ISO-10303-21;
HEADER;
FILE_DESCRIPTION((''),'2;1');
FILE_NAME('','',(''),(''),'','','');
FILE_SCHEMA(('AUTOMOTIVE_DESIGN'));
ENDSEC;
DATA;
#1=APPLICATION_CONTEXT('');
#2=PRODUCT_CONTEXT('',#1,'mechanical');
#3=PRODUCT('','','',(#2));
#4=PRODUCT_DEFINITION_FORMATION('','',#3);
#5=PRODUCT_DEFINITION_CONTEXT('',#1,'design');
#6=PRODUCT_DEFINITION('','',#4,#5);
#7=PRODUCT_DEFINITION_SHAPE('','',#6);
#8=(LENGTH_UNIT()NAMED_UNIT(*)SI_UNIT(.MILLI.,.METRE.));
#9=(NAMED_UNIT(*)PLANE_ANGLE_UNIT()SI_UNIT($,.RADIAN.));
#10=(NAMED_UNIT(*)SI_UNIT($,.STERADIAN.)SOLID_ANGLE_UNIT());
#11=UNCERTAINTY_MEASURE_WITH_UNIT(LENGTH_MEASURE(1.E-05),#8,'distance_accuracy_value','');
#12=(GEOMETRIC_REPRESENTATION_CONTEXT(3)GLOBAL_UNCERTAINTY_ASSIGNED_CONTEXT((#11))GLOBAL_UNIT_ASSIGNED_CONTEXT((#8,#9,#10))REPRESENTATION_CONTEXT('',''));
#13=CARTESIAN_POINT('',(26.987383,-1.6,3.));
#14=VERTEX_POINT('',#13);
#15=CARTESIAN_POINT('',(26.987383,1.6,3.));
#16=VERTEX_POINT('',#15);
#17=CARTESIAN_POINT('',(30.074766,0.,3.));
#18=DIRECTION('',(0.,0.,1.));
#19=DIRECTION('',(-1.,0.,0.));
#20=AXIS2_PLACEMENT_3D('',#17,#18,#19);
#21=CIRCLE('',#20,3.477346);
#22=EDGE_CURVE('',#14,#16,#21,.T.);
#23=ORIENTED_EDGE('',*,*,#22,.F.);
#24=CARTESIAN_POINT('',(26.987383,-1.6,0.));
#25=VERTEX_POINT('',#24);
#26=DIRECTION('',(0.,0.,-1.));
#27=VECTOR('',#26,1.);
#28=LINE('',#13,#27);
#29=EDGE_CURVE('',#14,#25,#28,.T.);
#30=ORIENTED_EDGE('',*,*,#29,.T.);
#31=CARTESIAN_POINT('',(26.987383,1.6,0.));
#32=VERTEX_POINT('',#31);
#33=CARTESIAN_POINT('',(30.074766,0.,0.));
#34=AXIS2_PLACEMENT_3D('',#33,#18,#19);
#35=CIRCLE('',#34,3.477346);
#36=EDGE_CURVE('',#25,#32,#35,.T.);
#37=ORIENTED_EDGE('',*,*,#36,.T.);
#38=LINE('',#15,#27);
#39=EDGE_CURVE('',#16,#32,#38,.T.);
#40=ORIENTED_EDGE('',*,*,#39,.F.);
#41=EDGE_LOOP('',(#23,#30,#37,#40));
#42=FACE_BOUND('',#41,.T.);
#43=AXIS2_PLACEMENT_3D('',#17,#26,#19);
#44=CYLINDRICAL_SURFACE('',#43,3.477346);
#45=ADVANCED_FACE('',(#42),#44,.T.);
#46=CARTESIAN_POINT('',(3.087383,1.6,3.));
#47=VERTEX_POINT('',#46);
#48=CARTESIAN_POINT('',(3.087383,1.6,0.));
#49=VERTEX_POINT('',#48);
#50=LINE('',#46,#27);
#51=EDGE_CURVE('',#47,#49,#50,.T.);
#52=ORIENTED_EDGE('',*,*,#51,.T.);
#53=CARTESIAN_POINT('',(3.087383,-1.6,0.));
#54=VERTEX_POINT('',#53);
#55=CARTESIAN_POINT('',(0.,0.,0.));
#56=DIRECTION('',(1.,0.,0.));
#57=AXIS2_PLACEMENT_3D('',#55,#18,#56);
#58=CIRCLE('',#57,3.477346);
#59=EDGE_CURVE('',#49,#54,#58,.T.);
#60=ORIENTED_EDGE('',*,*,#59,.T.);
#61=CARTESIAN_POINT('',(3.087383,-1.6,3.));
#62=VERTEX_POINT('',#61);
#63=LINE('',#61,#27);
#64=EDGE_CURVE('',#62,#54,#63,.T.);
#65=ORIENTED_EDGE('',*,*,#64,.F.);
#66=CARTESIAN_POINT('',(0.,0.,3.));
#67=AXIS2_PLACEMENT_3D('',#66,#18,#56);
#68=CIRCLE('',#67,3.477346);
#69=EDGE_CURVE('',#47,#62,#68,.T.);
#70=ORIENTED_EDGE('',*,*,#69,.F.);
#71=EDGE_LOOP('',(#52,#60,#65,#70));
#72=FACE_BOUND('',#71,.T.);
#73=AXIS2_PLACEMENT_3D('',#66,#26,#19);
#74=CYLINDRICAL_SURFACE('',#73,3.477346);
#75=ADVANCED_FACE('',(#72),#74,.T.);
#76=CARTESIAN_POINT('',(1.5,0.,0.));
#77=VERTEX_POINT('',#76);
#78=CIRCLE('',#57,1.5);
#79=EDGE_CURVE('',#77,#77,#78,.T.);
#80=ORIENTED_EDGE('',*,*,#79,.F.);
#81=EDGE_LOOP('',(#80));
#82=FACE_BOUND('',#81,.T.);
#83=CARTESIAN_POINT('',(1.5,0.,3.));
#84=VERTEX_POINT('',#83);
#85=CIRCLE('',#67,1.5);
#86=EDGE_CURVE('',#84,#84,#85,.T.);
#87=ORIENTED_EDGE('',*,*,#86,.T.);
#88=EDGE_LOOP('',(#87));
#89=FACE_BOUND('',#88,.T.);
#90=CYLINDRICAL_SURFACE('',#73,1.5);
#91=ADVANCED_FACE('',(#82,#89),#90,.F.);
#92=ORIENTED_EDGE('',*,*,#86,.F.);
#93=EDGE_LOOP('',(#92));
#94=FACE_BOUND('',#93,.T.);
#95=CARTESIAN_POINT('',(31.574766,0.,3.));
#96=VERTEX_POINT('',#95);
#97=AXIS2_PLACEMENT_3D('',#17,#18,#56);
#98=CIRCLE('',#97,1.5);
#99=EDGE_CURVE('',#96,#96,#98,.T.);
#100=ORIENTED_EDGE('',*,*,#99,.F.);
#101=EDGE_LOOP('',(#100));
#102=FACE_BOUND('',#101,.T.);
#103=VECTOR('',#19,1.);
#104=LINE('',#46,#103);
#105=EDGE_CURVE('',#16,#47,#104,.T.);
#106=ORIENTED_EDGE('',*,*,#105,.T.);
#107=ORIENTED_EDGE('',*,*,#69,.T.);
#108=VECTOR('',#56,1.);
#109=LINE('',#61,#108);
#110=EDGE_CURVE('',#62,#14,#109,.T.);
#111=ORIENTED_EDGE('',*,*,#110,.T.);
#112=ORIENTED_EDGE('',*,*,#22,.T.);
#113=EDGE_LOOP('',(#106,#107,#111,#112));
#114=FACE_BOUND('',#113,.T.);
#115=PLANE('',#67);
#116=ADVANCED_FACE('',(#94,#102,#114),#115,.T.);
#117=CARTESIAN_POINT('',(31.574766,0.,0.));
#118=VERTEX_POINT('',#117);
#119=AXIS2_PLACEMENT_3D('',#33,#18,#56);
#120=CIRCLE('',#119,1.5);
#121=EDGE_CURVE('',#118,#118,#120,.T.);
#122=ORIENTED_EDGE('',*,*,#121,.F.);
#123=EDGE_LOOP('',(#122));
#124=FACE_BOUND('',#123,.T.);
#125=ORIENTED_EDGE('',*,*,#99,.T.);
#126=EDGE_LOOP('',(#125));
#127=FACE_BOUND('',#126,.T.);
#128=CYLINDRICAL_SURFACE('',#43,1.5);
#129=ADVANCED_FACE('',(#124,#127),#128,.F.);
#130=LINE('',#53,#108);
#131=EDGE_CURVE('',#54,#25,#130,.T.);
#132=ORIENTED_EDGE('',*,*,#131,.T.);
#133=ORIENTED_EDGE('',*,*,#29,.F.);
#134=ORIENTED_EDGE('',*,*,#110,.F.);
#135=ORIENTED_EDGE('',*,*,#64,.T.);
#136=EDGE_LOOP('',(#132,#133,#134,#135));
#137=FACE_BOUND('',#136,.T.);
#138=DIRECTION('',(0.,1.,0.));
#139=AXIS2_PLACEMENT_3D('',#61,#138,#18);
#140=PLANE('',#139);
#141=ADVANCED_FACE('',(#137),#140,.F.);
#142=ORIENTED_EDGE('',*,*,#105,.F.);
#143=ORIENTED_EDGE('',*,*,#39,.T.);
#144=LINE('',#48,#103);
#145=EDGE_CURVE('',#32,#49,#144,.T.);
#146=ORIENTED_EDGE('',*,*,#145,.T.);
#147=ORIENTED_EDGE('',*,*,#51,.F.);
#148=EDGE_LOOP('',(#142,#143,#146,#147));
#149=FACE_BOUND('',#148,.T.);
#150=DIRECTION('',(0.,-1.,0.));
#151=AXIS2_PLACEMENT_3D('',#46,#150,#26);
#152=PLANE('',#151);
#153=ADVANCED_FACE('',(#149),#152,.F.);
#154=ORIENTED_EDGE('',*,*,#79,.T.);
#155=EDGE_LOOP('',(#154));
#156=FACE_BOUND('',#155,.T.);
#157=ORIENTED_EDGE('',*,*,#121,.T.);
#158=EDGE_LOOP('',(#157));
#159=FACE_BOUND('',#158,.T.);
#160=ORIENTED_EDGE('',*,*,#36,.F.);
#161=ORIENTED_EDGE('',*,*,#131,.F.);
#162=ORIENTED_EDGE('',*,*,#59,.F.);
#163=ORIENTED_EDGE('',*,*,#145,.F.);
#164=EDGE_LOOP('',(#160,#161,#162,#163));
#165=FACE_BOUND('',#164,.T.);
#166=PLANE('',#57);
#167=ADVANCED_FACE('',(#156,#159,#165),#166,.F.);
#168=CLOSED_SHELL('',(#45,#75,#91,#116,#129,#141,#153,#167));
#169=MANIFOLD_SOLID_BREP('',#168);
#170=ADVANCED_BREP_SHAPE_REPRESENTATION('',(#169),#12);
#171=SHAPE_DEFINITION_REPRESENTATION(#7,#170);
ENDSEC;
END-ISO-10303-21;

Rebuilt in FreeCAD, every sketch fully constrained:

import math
import FreeCAD as App
import Part
import Sketcher
Q = App.Units.Quantity

doc = App.newDocument("Part")
body = doc.addObject("PartDesign::Body", "Body")

# Sketch on XY plane
sketch1 = body.newObject("Sketcher::SketchObject", "Sketch")
sketch1.AttachmentSupport = (doc.getObject("XY_Plane"), [""])
sketch1.MapMode = "FlatFace"
sketch1.addGeometry(Part.LineSegment(App.Vector(27, 1.6, 0), App.Vector(3.1, 1.6, 0)), False)
sketch1.addGeometry(Part.ArcOfCircle(Part.Circle(App.Vector(0, 0, 0), App.Vector(0, 0, 1), 3.5), math.radians(27), math.radians(333)), False)
sketch1.addGeometry(Part.LineSegment(App.Vector(3.1, -1.6, 0), App.Vector(27, -1.6, 0)), False)
sketch1.addGeometry(Part.ArcOfCircle(Part.Circle(App.Vector(30.1, 0, 0), App.Vector(0, 0, 1), 3.5), math.radians(-153), math.radians(153)), False)
sketch1.addGeometry(Part.Circle(App.Vector(30.1, 0, 0), App.Vector(0, 0, 1), 1.5), False)
sketch1.addGeometry(Part.Circle(App.Vector(0, 0, 0), App.Vector(0, 0, 1), 1.5), False)
sketch1.addConstraint(Sketcher.Constraint("Coincident", 0, 2, 1, 1))
sketch1.addConstraint(Sketcher.Constraint("Coincident", 1, 2, 2, 1))
sketch1.addConstraint(Sketcher.Constraint("Coincident", 2, 2, 3, 1))
sketch1.addConstraint(Sketcher.Constraint("Coincident", 3, 2, 0, 1))
sketch1.addConstraint(Sketcher.Constraint("Horizontal", 0))
sketch1.addConstraint(Sketcher.Constraint("Horizontal", 2))
sketch1.addConstraint(Sketcher.Constraint("Coincident", 1, 3, -1, 1))
sketch1.addConstraint(Sketcher.Constraint("Coincident", 5, 3, -1, 1))
sketch1.addConstraint(Sketcher.Constraint("Coincident", 4, 3, 3, 3))
sketch1.addConstraint(Sketcher.Constraint("Equal", 1, 3))
sketch1.addConstraint(Sketcher.Constraint("Equal", 4, 5))
sketch1.addConstraint(Sketcher.Constraint("Symmetric", 2, 2, 3, 2, -1))
sketch1.addConstraint(Sketcher.Constraint("Diameter", 4, Q("3 mm")))
sketch1.addConstraint(Sketcher.Constraint("DistanceX", 0, 2, 0, 1, Q("23.9 mm")))
sketch1.addConstraint(Sketcher.Constraint("DistanceY", -1, 1, 0, 2, Q("1.6 mm")))
sketch1.addConstraint(Sketcher.Constraint("Radius", 1, Q("3.477346 mm")))
pad1 = body.newObject("PartDesign::Pad", "Pad")
pad1.Profile = sketch1
pad1.Length = 3

doc.recompute()
